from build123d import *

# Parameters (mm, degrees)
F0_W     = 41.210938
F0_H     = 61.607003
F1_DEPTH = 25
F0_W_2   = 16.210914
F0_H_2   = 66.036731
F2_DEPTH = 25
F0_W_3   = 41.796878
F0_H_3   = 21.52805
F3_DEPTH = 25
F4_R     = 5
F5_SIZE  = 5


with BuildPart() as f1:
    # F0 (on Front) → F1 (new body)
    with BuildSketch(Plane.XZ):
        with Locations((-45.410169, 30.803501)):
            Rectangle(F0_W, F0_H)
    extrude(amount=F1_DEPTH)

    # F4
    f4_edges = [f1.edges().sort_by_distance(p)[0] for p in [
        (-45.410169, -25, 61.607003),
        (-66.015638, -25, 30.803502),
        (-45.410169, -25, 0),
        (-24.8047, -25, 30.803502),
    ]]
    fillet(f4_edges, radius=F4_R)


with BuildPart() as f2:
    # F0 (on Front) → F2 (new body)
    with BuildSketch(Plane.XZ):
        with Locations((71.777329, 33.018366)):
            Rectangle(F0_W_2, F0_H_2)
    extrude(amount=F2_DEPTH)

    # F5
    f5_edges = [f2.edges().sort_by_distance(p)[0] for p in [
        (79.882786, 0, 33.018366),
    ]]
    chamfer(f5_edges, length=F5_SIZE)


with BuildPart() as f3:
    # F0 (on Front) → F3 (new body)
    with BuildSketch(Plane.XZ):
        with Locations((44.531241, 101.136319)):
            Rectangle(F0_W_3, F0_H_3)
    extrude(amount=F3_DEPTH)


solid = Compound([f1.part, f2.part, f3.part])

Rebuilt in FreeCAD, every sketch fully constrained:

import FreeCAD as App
import Part
import Sketcher
from FreeCAD import Vector
Q = App.Units.Quantity


def edges_at(feature, points):
    """Names of the edges that pass closest to the given points."""
    edges = feature.Shape.Edges
    near = lambda p: min(range(len(edges)), key=lambda i: edges[i].distToShape(Part.Vertex(*p))[0])
    return sorted({f"Edge{near(p) + 1}" for p in points})


def add_polygon(sketch, points):
    """Adds a closed chain of lines whose ends are joined by coincident constraints."""
    first, n = sketch.GeometryCount, len(points)
    for a, b in zip(points, points[1:] + points[:1]):
        sketch.addGeometry(Part.LineSegment(App.Vector(*a, 0), App.Vector(*b, 0)), False)
    for i in range(n):
        sketch.addConstraint(Sketcher.Constraint("Coincident", first + i, 2, first + (i + 1) % n, 1))

doc = App.newDocument("Part")
body = doc.addObject("PartDesign::Body", "Body")

# Sketch on XZ plane
sketch1 = doc.addObject("Sketcher::SketchObject", "Sketch")
body.addObject(sketch1)
sketch1.AttachmentSupport = (doc.XZ_Plane, [""])
sketch1.MapMode = "FlatFace"
add_polygon(sketch1, [(-66, 62), (-66, 0), (-25, 0), (-25, 62)])  # lines 0-3
sketch1.addConstraint(Sketcher.Constraint("Vertical", 0))
sketch1.addConstraint(Sketcher.Constraint("Horizontal", 1))
sketch1.addConstraint(Sketcher.Constraint("Vertical", 2))
sketch1.addConstraint(Sketcher.Constraint("Horizontal", 3))
sketch1.addConstraint(Sketcher.Constraint("PointOnObject", 0, 2, -1))
sketch1.addConstraint(Sketcher.Constraint("DistanceX", 1, 2, -1, 1, Q("24.8047 mm")))
sketch1.addConstraint(Sketcher.Constraint("DistanceX", 1, 1, 1, 2, Q("41.210938 mm")))
sketch1.addConstraint(Sketcher.Constraint("DistanceY", 0, 2, 0, 1, Q("61.607003 mm")))
pad1 = doc.addObject("PartDesign::Pad", "Pad")
body.addObject(pad1)
pad1.Profile = sketch1
pad1.Length = 25
doc.recompute()

fillet = doc.addObject("PartDesign::Fillet", "Fillet")
body.addObject(fillet)
fillet.Base = (pad1, edges_at(pad1, [
    (-45.41, -25, 61.607),
    (-66.016, -25, 30.804),
    (-45.41, -25, 0),
    (-24.805, -25, 30.804),
]))
fillet.Radius = 5
body2 = doc.addObject("PartDesign::Body", "Body001")

# Sketch on XZ plane
sketch2 = doc.addObject("Sketcher::SketchObject", "Sketch001")
body2.addObject(sketch2)
sketch2.AttachmentSupport = (doc.getObject("XZ_Plane001"), [""])
sketch2.MapMode = "FlatFace"
add_polygon(sketch2, [(64, 66), (64, 0), (80, 0), (80, 66)])  # lines 0-3
sketch2.addConstraint(Sketcher.Constraint("Vertical", 0))
sketch2.addConstraint(Sketcher.Constraint("Horizontal", 1))
sketch2.addConstraint(Sketcher.Constraint("Vertical", 2))
sketch2.addConstraint(Sketcher.Constraint("Horizontal", 3))
sketch2.addConstraint(Sketcher.Constraint("PointOnObject", 0, 2, -1))
sketch2.addConstraint(Sketcher.Constraint("DistanceY", 0, 2, 0, 1, Q("66.036731 mm")))
sketch2.addConstraint(Sketcher.Constraint("DistanceX", 1, 1, 1, 2, Q("16.210914 mm")))
sketch2.addConstraint(Sketcher.Constraint("DistanceX", -1, 1, 0, 2, Q("63.671872 mm")))
pad2 = doc.addObject("PartDesign::Pad", "Pad001")
body2.addObject(pad2)
pad2.Profile = sketch2
pad2.Length = 25
doc.recompute()

chamfer = doc.addObject("PartDesign::Chamfer", "Chamfer")
body2.addObject(chamfer)
chamfer.Base = (pad2, edges_at(pad2, [(79.883, 0, 33.018)]))
chamfer.Size = 5
body3 = doc.addObject("PartDesign::Body", "Body002")

# Sketch on XZ plane
sketch3 = doc.addObject("Sketcher::SketchObject", "Sketch002")
body3.addObject(sketch3)
sketch3.AttachmentSupport = (doc.getObject("XZ_Plane002"), [""])
sketch3.MapMode = "FlatFace"
add_polygon(sketch3, [(24, 112), (24, 90), (65, 90), (65, 112)])  # lines 0-3
sketch3.addConstraint(Sketcher.Constraint("Vertical", 0))
sketch3.addConstraint(Sketcher.Constraint("Horizontal", 1))
sketch3.addConstraint(Sketcher.Constraint("Vertical", 2))
sketch3.addConstraint(Sketcher.Constraint("Horizontal", 3))
sketch3.addConstraint(Sketcher.Constraint("DistanceX", 1, 1, 1, 2, Q("41.796878 mm")))
sketch3.addConstraint(Sketcher.Constraint("DistanceY", 0, 2, 0, 1, Q("21.52805 mm")))
sketch3.addConstraint(Sketcher.Constraint("DistanceX", -1, 1, 1, 2, Q("65.42968 mm")))
sketch3.addConstraint(Sketcher.Constraint("DistanceY", -1, 1, 0, 2, Q("90.372294 mm")))
pad3 = doc.addObject("PartDesign::Pad", "Pad002")
body3.addObject(pad3)
pad3.Profile = sketch3
pad3.Length = 25

doc.recompute()
